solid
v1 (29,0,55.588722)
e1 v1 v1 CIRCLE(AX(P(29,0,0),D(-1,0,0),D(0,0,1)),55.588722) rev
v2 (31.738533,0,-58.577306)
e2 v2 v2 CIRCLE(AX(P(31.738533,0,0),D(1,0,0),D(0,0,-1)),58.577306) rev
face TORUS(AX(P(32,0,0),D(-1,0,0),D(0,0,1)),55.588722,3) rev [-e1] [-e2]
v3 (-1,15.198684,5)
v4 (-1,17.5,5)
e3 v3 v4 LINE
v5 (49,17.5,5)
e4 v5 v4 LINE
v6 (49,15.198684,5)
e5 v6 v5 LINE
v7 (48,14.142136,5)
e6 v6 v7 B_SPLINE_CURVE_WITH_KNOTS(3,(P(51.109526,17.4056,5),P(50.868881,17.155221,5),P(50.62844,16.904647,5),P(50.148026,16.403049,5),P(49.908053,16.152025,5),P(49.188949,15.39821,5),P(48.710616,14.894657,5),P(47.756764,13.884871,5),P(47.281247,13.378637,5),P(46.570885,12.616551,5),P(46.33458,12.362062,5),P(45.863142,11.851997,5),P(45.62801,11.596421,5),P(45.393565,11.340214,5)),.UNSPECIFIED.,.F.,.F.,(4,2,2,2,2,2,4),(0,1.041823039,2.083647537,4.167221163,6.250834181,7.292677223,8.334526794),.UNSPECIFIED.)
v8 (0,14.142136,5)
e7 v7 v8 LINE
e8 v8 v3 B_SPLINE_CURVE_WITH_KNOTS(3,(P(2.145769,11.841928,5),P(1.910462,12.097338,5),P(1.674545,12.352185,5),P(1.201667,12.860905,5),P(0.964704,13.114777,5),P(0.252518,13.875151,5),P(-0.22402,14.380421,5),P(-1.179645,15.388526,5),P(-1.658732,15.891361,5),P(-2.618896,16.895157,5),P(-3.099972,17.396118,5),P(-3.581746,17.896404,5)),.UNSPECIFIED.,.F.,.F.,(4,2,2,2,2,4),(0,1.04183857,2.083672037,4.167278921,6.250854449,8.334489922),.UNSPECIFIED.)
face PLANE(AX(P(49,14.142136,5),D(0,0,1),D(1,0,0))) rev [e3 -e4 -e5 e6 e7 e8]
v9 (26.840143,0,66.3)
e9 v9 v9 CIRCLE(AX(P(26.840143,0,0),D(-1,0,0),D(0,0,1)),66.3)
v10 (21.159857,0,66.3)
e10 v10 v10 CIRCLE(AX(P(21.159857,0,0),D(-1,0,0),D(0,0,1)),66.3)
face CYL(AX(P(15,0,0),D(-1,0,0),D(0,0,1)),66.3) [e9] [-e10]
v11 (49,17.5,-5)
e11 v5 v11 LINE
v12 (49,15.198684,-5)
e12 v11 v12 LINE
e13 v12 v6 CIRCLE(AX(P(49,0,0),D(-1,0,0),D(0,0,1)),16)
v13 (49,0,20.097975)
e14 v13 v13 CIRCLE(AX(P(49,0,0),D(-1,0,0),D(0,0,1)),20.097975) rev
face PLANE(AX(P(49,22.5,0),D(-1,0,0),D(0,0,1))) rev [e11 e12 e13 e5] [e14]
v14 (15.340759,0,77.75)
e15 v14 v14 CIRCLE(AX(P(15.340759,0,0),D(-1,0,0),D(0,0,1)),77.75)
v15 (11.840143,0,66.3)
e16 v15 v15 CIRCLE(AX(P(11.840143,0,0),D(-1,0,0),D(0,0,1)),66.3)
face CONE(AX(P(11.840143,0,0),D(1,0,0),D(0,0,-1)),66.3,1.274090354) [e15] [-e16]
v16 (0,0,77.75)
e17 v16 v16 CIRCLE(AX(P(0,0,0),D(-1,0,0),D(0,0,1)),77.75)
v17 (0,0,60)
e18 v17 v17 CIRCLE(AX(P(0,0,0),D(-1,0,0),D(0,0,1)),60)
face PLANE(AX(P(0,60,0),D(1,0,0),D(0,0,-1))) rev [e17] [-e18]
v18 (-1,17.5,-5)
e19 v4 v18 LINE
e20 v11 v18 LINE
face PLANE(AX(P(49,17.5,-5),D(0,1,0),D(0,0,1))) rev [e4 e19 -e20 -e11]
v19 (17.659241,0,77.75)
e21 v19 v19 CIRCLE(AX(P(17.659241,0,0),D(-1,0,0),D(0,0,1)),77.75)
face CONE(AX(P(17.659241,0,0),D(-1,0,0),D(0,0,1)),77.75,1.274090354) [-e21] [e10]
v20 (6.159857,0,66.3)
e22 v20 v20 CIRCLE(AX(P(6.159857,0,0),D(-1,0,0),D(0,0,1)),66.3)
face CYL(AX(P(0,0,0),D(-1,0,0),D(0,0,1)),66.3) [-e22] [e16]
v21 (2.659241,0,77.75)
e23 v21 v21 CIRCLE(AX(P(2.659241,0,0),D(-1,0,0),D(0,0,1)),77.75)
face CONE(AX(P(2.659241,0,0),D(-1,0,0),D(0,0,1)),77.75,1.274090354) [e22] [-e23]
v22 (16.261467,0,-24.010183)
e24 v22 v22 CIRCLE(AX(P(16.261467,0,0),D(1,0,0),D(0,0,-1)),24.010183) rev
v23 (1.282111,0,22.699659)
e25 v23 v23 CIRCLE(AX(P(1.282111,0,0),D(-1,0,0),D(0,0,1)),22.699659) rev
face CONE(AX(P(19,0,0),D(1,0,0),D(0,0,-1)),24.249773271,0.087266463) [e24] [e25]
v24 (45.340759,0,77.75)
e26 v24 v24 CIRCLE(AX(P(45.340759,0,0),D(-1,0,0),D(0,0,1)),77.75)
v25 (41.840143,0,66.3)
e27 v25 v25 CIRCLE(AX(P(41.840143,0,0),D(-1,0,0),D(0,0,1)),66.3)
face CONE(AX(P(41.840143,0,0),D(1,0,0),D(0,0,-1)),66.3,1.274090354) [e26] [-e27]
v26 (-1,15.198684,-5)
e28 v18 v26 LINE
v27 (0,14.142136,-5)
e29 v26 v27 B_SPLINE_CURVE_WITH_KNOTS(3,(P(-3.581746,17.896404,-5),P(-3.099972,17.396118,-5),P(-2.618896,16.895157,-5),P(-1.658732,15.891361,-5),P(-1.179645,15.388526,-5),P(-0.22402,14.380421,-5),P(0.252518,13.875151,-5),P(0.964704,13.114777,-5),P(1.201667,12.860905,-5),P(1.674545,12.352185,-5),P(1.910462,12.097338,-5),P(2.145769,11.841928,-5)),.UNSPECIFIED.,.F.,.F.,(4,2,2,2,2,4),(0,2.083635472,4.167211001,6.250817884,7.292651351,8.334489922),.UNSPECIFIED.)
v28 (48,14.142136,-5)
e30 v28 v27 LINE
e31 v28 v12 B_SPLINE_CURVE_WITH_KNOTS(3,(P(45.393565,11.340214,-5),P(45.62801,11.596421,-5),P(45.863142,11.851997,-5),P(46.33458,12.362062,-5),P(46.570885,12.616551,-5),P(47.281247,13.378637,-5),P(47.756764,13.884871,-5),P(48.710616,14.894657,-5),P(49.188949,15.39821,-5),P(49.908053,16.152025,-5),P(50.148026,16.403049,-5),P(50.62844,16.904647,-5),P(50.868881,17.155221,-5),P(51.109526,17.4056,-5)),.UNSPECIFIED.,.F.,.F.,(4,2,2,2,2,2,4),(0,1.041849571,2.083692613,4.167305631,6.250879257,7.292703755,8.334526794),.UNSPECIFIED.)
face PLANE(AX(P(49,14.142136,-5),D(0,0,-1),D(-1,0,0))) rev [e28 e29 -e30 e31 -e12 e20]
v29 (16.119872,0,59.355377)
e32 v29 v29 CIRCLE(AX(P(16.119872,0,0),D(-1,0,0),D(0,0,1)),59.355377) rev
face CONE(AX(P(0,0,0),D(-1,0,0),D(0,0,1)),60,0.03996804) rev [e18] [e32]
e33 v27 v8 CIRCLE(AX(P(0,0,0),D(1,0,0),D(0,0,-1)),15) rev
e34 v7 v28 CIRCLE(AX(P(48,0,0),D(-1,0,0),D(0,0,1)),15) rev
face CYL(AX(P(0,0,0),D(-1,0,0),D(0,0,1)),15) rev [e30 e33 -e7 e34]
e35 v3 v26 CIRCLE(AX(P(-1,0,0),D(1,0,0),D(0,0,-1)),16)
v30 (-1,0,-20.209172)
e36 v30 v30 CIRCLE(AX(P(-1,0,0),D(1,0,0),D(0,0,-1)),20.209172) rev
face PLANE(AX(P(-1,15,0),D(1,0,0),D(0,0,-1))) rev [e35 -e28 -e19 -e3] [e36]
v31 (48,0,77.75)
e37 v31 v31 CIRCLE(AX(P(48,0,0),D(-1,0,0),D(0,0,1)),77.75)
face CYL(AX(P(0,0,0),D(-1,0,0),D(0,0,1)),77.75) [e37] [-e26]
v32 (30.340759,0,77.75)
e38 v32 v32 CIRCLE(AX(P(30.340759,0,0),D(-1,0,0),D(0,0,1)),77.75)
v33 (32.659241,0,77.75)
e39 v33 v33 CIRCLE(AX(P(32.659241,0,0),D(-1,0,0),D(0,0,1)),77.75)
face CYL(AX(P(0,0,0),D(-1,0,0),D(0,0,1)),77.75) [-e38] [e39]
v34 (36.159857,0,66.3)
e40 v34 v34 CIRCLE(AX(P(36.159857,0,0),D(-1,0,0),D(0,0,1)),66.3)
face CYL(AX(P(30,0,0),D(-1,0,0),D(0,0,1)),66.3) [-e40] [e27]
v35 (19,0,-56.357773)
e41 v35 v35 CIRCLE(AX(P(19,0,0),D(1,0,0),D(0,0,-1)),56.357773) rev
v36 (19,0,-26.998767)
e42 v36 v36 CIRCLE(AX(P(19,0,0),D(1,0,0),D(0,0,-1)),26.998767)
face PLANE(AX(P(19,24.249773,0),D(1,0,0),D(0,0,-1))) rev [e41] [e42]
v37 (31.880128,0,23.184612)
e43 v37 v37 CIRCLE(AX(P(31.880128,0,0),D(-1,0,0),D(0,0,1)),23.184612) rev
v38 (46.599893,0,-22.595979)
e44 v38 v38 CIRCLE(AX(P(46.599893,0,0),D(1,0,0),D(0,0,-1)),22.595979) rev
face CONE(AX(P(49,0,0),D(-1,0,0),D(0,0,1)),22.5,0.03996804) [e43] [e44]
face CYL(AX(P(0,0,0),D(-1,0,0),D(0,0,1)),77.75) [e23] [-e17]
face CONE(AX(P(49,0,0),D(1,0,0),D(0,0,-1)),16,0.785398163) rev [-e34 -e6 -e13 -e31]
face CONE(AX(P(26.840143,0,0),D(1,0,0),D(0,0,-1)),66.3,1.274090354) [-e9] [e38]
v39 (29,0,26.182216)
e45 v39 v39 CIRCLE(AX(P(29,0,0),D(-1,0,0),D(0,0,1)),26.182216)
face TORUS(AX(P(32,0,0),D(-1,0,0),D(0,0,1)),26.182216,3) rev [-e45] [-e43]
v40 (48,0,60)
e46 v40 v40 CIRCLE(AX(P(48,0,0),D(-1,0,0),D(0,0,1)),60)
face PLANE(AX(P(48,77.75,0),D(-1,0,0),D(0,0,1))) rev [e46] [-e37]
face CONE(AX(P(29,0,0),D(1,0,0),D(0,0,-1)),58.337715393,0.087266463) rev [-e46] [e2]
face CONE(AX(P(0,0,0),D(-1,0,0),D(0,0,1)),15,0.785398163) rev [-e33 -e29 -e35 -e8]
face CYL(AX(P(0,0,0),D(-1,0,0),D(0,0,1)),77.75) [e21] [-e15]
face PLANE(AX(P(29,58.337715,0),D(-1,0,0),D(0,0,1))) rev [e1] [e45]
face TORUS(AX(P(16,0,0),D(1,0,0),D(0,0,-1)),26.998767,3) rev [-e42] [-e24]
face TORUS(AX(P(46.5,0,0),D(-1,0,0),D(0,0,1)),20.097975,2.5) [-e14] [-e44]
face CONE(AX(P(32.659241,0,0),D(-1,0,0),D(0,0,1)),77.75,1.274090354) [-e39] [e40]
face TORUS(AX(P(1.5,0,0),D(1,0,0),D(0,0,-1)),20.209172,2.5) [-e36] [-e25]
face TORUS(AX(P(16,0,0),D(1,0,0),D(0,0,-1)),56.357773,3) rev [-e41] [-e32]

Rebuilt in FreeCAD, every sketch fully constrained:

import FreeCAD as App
import Part
import Sketcher
from FreeCAD import Vector
Q = App.Units.Quantity


def edges_at(feature, points):
    """Names of the edges that pass closest to the given points."""
    edges = feature.Shape.Edges
    near = lambda p: min(range(len(edges)), key=lambda i: edges[i].distToShape(Part.Vertex(*p))[0])
    return sorted({f"Edge{near(p) + 1}" for p in points})

doc = App.newDocument("Part")
body = doc.addObject("PartDesign::Body", "Body")

# Sketch on XY plane
sketch1 = body.newObject("Sketcher::SketchObject", "Sketch")
sketch1.AttachmentSupport = (doc.getObject("XY_Plane"), [""])
sketch1.MapMode = "FlatFace"
sketch1.addGeometry([
    Part.LineSegment(Vector(-1, 22, 0), Vector(-1, 15, 0)),  # 0
    Part.LineSegment(Vector(-1, 15, 0), Vector(49, 15, 0)),  # 1
    Part.LineSegment(Vector(49, 15, 0), Vector(49, 22, 0)),  # 2
    Part.LineSegment(Vector(49, 22, 0), Vector(29, 23, 0)),  # 3
    Part.LineSegment(Vector(29, 23, 0), Vector(29, 58, 0)),  # 4
    Part.LineSegment(Vector(29, 58, 0), Vector(48, 60, 0)),  # 5
    Part.LineSegment(Vector(48, 60, 0), Vector(48, 78, 0)),  # 6
    Part.LineSegment(Vector(48, 78, 0), Vector(0, 78, 0)),  # 7
    Part.LineSegment(Vector(0, 78, 0), Vector(0, 60, 0)),  # 8
    Part.LineSegment(Vector(0, 60, 0), Vector(19, 59, 0)),  # 9
    Part.LineSegment(Vector(19, 59, 0), Vector(19, 24, 0)),  # 10
    Part.LineSegment(Vector(19, 24, 0), Vector(-1, 22, 0)),  # 11
], False)
sketch1.addConstraint([
    Sketcher.Constraint("Coincident", 0, 2, 1, 1),
    Sketcher.Constraint("Coincident", 1, 2, 2, 1),
    Sketcher.Constraint("Coincident", 2, 2, 3, 1),
    Sketcher.Constraint("Coincident", 3, 2, 4, 1),
    Sketcher.Constraint("Coincident", 4, 2, 5, 1),
    Sketcher.Constraint("Coincident", 5, 2, 6, 1),
    Sketcher.Constraint("Coincident", 6, 2, 7, 1),
    Sketcher.Constraint("Coincident", 7, 2, 8, 1),
    Sketcher.Constraint("Coincident", 8, 2, 9, 1),
    Sketcher.Constraint("Coincident", 9, 2, 10, 1),
    Sketcher.Constraint("Coincident", 10, 2, 11, 1),
    Sketcher.Constraint("Coincident", 11, 2, 0, 1),
    Sketcher.Constraint("Vertical", 0),
    Sketcher.Constraint("Horizontal", 1),
    Sketcher.Constraint("Vertical", 2),
    Sketcher.Constraint("Vertical", 4),
    Sketcher.Constraint("Vertical", 6),
    Sketcher.Constraint("Horizontal", 7),
    Sketcher.Constraint("Vertical", 8),
    Sketcher.Constraint("Vertical", 10),
    Sketcher.Constraint("PointOnObject", 7, 2, -2),
    Sketcher.Constraint("Parallel", 3, 9),
    Sketcher.Constraint("Parallel", 5, 11),
    Sketcher.Constraint("Horizontal", 5, 2, 8, 2),
    Sketcher.Constraint("Horizontal", 2, 2, 11, 2),
    Sketcher.Constraint("DistanceX", 1, 1, 1, 2, Q("50 mm")),
    Sketcher.Constraint("DistanceX", 7, 2, 7, 1, Q("48 mm")),
    Sketcher.Constraint("Angle", 5, Q("5 deg")),
    Sketcher.Constraint("DistanceY", 0, 2, 0, 1, Q("7.5 mm")),
    Sketcher.Constraint("DistanceX", 0, 2, -1, 1, Q("1 mm")),
    Sketcher.Constraint("DistanceY", -1, 1, 0, 2, Q("15 mm")),
    Sketcher.Constraint("DistanceX", -1, 1, 3, 2, Q("29 mm")),
    Sketcher.Constraint("DistanceY", -1, 1, 5, 2, Q("60 mm")),
    Sketcher.Constraint("DistanceX", -1, 1, 9, 2, Q("19 mm")),
    Sketcher.Constraint("DistanceY", 6, 1, 6, 2, Q("17.75 mm")),
    Sketcher.Constraint("Angle", 3, Q("177.71 deg")),
])
revolution = body.newObject("PartDesign::Revolution", "Revolution")
revolution.Profile = sketch1
revolution.ReferenceAxis = (sketch1, ["H_Axis"])
revolution.Angle = 360

# Sketch on XY plane
sketch2 = body.newObject("Sketcher::SketchObject", "Sketch001")
sketch2.AttachmentSupport = (doc.getObject("XY_Plane"), [""])
sketch2.MapMode = "FlatFace"
sketch2.addGeometry([
    Part.LineSegment(Vector(12, 66, 0), Vector(15, 78, 0)),
    Part.LineSegment(Vector(15, 78, 0), Vector(3, 78, 0)),
    Part.LineSegment(Vector(3, 78, 0), Vector(6, 66, 0)),
    Part.LineSegment(Vector(6, 66, 0), Vector(12, 66, 0)),
], False)
sketch2.addConstraint([
    Sketcher.Constraint("Coincident", 0, 2, 1, 1),
    Sketcher.Constraint("Coincident", 1, 2, 2, 1),
    Sketcher.Constraint("Coincident", 2, 2, 3, 1),
    Sketcher.Constraint("Coincident", 3, 2, 0, 1),
    Sketcher.Constraint("Horizontal", 1),
    Sketcher.Constraint("Horizontal", 3),
    Sketcher.Constraint("Equal", 0, 2),
    Sketcher.Constraint("Angle", 0, Q("73 deg")),
    Sketcher.Constraint("DistanceY", -1, 1, 2, 2, Q("66.3 mm")),
    Sketcher.Constraint("DistanceY", -1, 1, 0, 2, Q("77.75 mm")),
    Sketcher.Constraint("DistanceX", 1, 2, 1, 1, Q("12.681519 mm")),
    Sketcher.Constraint("DistanceX", -1, 1, 0, 2, Q("15.340759 mm")),
])
groove = body.newObject("PartDesign::Groove", "Groove")
groove.Profile = sketch2
groove.ReferenceAxis = (sketch2, ["H_Axis"])
groove.Angle = 360
doc.recompute()

linearpattern = body.newObject("PartDesign::LinearPattern", "LinearPattern")
linearpattern.Originals = [groove]
linearpattern.Direction = (doc.getObject("X_Axis"), [""])
linearpattern.Mode = "offset"
linearpattern.Offset = 15
linearpattern.Occurrences = 3
body.Tip = linearpattern
doc.recompute()

chamfer = body.newObject("PartDesign::Chamfer", "Chamfer")
chamfer.Base = (linearpattern, edges_at(linearpattern, [(-1, 0, -15), (49, 0, -15)]))
chamfer.Size = 1

# Sketch on YZ plane
sketch3 = body.newObject("Sketcher::SketchObject", "Sketch002")
sketch3.AttachmentSupport = (doc.getObject("YZ_Plane"), [""])
sketch3.MapMode = "FlatFace"
sketch3.AttachmentOffset = App.Placement(Vector(0, 0, -1), App.Rotation())
sketch3.addGeometry([
    Part.LineSegment(Vector(17.5, -5, 0), Vector(14.1, -5, 0)),
    Part.LineSegment(Vector(14.1, -5, 0), Vector(14.1, 5, 0)),
    Part.LineSegment(Vector(14.1, 5, 0), Vector(17.5, 5, 0)),
    Part.LineSegment(Vector(17.5, 5, 0), Vector(17.5, -5, 0)),
], False)
sketch3.addConstraint([
    Sketcher.Constraint("Coincident", 0, 2, 1, 1),
    Sketcher.Constraint("Coincident", 1, 2, 2, 1),
    Sketcher.Constraint("Coincident", 2, 2, 3, 1),
    Sketcher.Constraint("Coincident", 3, 2, 0, 1),
    Sketcher.Constraint("Horizontal", 0),
    Sketcher.Constraint("Vertical", 1),
    Sketcher.Constraint("Horizontal", 2),
    Sketcher.Constraint("Vertical", 3),
    Sketcher.Constraint("DistanceY", 1, 1, 1, 2, Q("10 mm")),
    Sketcher.Constraint("DistanceY", 0, 2, -1, 1, Q("5 mm")),
    Sketcher.Constraint("DistanceX", -1, 1, 2, 2, Q("17.5 mm")),
    Sketcher.Constraint("DistanceX", 0, 2, 0, 1, Q("3.357864 mm")),
])
pocket1 = body.newObject("PartDesign::Pocket", "Pocket")
pocket1.Profile = sketch3
pocket1.Type = "ThroughAll"
pocket1.Reversed = True
doc.recompute()

fillet = body.newObject("PartDesign::Fillet", "Fillet")
fillet.Base = (pocket1, edges_at(pocket1, [
    (19, 0, -59.24),
    (19, 0, -24.25),
    (29, 0, -23.3),
    (29, 0, -58.338),
]))
fillet.Radius = 3
doc.recompute()

fillet2 = body.newObject("PartDesign::Fillet", "Fillet001")
fillet2.Base = (fillet, edges_at(fillet, [(-1, 0, -22.5), (49, 0, -22.5)]))
fillet2.Radius = 2.5

doc.recompute()
